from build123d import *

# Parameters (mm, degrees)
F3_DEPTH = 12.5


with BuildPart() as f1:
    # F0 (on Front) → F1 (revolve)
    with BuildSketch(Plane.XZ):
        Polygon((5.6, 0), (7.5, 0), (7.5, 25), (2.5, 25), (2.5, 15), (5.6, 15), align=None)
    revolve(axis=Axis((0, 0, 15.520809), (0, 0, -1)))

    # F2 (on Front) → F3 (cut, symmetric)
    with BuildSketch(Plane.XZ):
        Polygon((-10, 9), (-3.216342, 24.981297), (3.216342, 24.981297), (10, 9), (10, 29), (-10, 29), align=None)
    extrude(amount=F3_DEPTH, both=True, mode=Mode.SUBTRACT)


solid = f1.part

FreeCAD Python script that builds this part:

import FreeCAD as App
import Part
import Sketcher

V = App.Vector
Q = App.Units.Quantity


def add_polygon(sketch, points):
    """Adds a closed chain of lines whose ends are joined by coincident constraints."""
    first, n = sketch.GeometryCount, len(points)
    for a, b in zip(points, points[1:] + points[:1]):
        sketch.addGeometry(Part.LineSegment(App.Vector(*a, 0), App.Vector(*b, 0)), False)
    for i in range(n):
        sketch.addConstraint(Sketcher.Constraint("Coincident", first + i, 2, first + (i + 1) % n, 1))

doc = App.newDocument("Part")
body = doc.addObject("PartDesign::Body", "Body")

sketch1 = body.newObject("Sketcher::SketchObject", "Sketch")
sketch1.AttachmentSupport = (doc.getObject("XZ_Plane"), [""])
sketch1.MapMode = "FlatFace"
add_polygon(sketch1, [(5.6, 0), (7.5, 0), (7.5, 25), (2.5, 25), (2.5, 15), (5.6, 15)])
sketch1.addConstraint([
    Sketcher.Constraint("Horizontal", 0),
    Sketcher.Constraint("Vertical", 1),
    Sketcher.Constraint("Horizontal", 2),
    Sketcher.Constraint("Vertical", 3),
    Sketcher.Constraint("Horizontal", 4),
    Sketcher.Constraint("Vertical", 5),
    Sketcher.Constraint("PointOnObject", 0, 2, -1),
    Sketcher.Constraint("DistanceX", 2, 2, 2, 1, 5.0),
    Sketcher.Constraint("DistanceY", 1, 1, 1, 2, 25.0),
    Sketcher.Constraint("DistanceY", 3, 2, 3, 1, 10.0),
    Sketcher.Constraint("DistanceX", 0, 1, 0, 2, 1.9),
    Sketcher.Constraint("DistanceX", -1, 1, 0, 2, 7.5),
])
revolution = body.newObject("PartDesign::Revolution", "Revolution")
revolution.Profile = sketch1
revolution.ReferenceAxis = (sketch1, ["V_Axis"])
revolution.Angle = 360

sketch2 = body.newObject("Sketcher::SketchObject", "Sketch001")
sketch2.AttachmentSupport = (doc.getObject("XZ_Plane"), [""])
sketch2.MapMode = "FlatFace"
add_polygon(sketch2, [(-10, 9), (-3, 25), (3, 25), (10, 9), (10, 29), (-10, 29)])
sketch2.addConstraint([
    Sketcher.Constraint("Horizontal", 1),
    Sketcher.Constraint("Vertical", 3),
    Sketcher.Constraint("Horizontal", 4),
    Sketcher.Constraint("Vertical", 5),
    Sketcher.Constraint("Symmetric", 2, 2, 5, 2, -2),
    Sketcher.Constraint("Equal", 4, 3),
    Sketcher.Constraint("Equal", 0, 2),
    Sketcher.Constraint("DistanceX", 4, 2, 4, 1, 20.0),
    Sketcher.Constraint("Angle", 0, Q("67 deg")),
    Sketcher.Constraint("DistanceY", -1, 1, 2, 2, 9.0),
    Sketcher.Constraint("DistanceX", 1, 1, 1, 2, 6.432684),
])
pocket1 = body.newObject("PartDesign::Pocket", "Pocket")
pocket1.Profile = sketch2
pocket1.Length = 25
pocket1.Midplane = True

doc.recompute()
